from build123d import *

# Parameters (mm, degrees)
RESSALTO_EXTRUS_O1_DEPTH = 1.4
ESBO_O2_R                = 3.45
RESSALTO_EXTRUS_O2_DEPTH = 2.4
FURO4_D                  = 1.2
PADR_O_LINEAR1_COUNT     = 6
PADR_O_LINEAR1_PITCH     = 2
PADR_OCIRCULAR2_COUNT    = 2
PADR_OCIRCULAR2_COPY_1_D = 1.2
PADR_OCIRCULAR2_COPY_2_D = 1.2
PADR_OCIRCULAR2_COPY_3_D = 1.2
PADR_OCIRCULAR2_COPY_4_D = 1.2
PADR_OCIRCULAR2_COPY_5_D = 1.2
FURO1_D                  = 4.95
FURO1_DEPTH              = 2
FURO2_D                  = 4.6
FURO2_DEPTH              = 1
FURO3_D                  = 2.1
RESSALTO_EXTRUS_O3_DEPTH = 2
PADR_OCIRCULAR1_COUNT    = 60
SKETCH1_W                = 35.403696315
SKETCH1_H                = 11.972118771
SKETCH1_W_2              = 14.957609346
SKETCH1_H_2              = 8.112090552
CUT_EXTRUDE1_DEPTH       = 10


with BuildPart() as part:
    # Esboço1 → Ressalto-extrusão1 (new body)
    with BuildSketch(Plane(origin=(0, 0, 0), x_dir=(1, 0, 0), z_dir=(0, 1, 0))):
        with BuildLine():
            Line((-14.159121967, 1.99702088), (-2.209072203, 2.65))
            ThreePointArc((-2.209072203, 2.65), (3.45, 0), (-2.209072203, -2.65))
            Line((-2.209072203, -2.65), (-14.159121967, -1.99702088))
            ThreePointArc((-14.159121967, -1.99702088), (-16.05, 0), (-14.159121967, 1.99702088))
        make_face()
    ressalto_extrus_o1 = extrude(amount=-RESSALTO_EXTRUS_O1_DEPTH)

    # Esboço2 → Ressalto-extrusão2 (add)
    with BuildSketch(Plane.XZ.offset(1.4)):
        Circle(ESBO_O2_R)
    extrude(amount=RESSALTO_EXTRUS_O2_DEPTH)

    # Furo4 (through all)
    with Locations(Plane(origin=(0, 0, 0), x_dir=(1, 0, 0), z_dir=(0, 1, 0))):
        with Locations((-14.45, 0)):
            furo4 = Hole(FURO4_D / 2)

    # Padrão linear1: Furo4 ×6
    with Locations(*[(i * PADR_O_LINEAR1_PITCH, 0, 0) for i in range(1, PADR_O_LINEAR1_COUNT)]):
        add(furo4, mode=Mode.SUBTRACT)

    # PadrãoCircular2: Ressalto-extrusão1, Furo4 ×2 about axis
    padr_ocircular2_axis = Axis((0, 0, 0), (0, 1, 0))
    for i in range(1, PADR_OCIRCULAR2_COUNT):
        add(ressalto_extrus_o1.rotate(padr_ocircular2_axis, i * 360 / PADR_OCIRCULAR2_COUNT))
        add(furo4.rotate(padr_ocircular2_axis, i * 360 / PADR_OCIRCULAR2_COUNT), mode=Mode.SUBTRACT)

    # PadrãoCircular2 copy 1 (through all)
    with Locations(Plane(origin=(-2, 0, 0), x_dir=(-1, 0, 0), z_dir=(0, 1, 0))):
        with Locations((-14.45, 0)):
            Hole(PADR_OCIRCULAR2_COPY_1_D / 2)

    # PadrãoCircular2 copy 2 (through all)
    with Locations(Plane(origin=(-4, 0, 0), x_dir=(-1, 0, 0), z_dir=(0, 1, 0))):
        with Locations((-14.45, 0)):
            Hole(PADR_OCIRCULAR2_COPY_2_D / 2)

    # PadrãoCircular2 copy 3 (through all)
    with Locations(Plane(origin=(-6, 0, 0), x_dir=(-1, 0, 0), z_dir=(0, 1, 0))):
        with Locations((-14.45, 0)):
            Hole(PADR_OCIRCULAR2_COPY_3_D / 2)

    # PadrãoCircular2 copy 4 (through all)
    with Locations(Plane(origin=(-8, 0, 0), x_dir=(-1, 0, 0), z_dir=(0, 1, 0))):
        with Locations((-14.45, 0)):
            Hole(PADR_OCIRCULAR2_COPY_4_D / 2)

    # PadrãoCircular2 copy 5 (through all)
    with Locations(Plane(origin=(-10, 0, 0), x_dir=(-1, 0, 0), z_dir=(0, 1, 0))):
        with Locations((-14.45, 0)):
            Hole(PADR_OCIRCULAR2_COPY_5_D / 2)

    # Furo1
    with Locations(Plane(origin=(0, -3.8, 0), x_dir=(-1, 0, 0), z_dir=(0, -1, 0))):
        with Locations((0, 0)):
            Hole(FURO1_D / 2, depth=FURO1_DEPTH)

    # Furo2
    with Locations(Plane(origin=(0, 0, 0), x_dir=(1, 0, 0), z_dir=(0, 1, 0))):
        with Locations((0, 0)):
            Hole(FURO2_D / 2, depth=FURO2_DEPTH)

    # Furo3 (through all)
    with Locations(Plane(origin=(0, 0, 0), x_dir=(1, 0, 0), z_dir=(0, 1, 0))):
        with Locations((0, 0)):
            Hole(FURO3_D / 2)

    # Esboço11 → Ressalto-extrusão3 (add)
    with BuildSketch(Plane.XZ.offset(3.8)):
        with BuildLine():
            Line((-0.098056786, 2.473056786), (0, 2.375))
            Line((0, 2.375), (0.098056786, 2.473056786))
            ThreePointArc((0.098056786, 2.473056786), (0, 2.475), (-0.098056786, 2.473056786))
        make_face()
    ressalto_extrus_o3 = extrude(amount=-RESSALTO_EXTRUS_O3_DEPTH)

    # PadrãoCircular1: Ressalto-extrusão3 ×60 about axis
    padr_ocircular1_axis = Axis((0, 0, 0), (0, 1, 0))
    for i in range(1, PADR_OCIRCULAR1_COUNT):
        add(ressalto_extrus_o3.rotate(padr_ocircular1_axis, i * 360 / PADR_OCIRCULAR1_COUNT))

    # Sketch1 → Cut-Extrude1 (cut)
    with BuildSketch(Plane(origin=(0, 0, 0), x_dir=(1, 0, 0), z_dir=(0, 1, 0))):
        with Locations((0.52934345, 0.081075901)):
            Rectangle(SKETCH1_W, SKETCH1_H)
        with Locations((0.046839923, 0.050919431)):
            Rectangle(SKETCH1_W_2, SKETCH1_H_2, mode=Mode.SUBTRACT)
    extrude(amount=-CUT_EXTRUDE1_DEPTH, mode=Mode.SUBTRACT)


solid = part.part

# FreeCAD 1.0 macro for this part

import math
import FreeCAD as App
import Part
import Sketcher

V = App.Vector

doc = App.newDocument("Part")
body = doc.addObject("PartDesign::Body", "Body")

sketch1 = doc.addObject("Sketcher::SketchObject", "Sketch")
body.addObject(sketch1)
sketch1.AttachmentSupport = (doc.XZ_Plane, [""])
sketch1.MapMode = "FlatFace"
sketch1.addGeometry(Part.LineSegment(V(-2.209072, -2.65, 0), V(-14.159122, -1.997021, 0)), False)
sketch1.addGeometry(Part.ArcOfCircle(Part.Circle(V(-14.05, 0, 0), V(0, 0, 1), 2), math.radians(93.127667), math.radians(266.872333)), False)
sketch1.addGeometry(Part.LineSegment(V(-14.159122, 1.997021, 0), V(-2.209072, 2.65, 0)), False)
sketch1.addGeometry(Part.ArcOfCircle(Part.Circle(V(0, 0, 0), V(0, 0, 1), 3.45), math.radians(-129.814998), math.radians(129.814998)), False)
sketch1.addConstraint(Sketcher.Constraint("Tangent", 0, 2, 1, 2))
sketch1.addConstraint(Sketcher.Constraint("Tangent", 1, 1, 2, 1))
sketch1.addConstraint(Sketcher.Constraint("Coincident", 2, 2, 3, 2))
sketch1.addConstraint(Sketcher.Constraint("Coincident", 3, 1, 0, 1))
sketch1.addConstraint(Sketcher.Constraint("Coincident", 3, 3, -1, 1))
sketch1.addConstraint(Sketcher.Constraint("Symmetric", 0, 2, 1, 1, -1))
sketch1.addConstraint(Sketcher.Constraint("Radius", 1, 2.0))
sketch1.addConstraint(Sketcher.Constraint("Radius", 3, 3.45))
sketch1.addConstraint(Sketcher.Constraint("DistanceY", 3, 1, 2, 2, 5.3))
sketch1.addConstraint(Sketcher.Constraint("DistanceX", 1, 3, -1, 1, 14.05))
pad1 = doc.addObject("PartDesign::Pad", "Pad")
body.addObject(pad1)
pad1.Profile = sketch1
pad1.Length = 1.4

sketch2 = doc.addObject("Sketcher::SketchObject", "Sketch001")
body.addObject(sketch2)
sketch2.AttachmentSupport = (doc.XZ_Plane, [""])
sketch2.MapMode = "FlatFace"
sketch2.AttachmentOffset = App.Placement(V(0, 0, 1.4), App.Rotation())
sketch2.addGeometry(Part.Circle(V(0, 0, 0), V(0, 0, 1), 3.45), False)
sketch2.addConstraint(Sketcher.Constraint("Coincident", 0, 3, -1, 1))
sketch2.addConstraint(Sketcher.Constraint("Diameter", 0, 6.9))
pad2 = doc.addObject("PartDesign::Pad", "Pad001")
body.addObject(pad2)
pad2.Profile = sketch2
pad2.Length = 2.4

sketch3 = doc.addObject("Sketcher::SketchObject", "Sketch002")
body.addObject(sketch3)
sketch3.AttachmentSupport = (doc.XZ_Plane, [""])
sketch3.MapMode = "FlatFace"
sketch3.addGeometry(Part.Circle(V(-14.45, 0, 0), V(0, 0, 1), 0.6), False)
sketch3.addConstraint(Sketcher.Constraint("PointOnObject", 0, 3, -1))
sketch3.addConstraint(Sketcher.Constraint("Diameter", 0, 1.2))
sketch3.addConstraint(Sketcher.Constraint("DistanceX", 0, 3, -1, 1, 14.45))
doc.recompute()
hole = doc.addObject("PartDesign::Hole", "Hole")
body.addObject(hole)
hole.Profile = sketch3
hole.ThreadType = "None"
hole.Diameter = 1.2
hole.DepthType = "ThroughAll"
hole.Reversed = True
doc.recompute()

linearpattern = doc.addObject("PartDesign::LinearPattern", "LinearPattern")
body.addObject(linearpattern)
linearpattern.Originals = [hole]
linearpattern.Direction = (doc.X_Axis, [""])
linearpattern.Mode = "offset"
linearpattern.Offset = 2
linearpattern.Occurrences = 6
body.Tip = linearpattern
doc.recompute()

polarpattern = doc.addObject("PartDesign::PolarPattern", "PolarPattern")
body.addObject(polarpattern)
polarpattern.Originals = [pad1, hole]
polarpattern.Axis = (doc.Y_Axis, [""])
polarpattern.Angle = 360
polarpattern.Occurrences = 2
body.Tip = polarpattern

sketch4 = doc.addObject("Sketcher::SketchObject", "Sketch003")
body.addObject(sketch4)
sketch4.AttachmentSupport = (doc.XZ_Plane, [""])
sketch4.MapMode = "FlatFace"
sketch4.addGeometry(Part.Circle(V(12.45, 0, 0), V(0, 0, 1), 0.6), False)
sketch4.addConstraint(Sketcher.Constraint("PointOnObject", 0, 3, -1))
sketch4.addConstraint(Sketcher.Constraint("Diameter", 0, 1.2))
sketch4.addConstraint(Sketcher.Constraint("DistanceX", -1, 1, 0, 3, 12.45))
doc.recompute()
hole2 = doc.addObject("PartDesign::Hole", "Hole001")
body.addObject(hole2)
hole2.Profile = sketch4
hole2.ThreadType = "None"
hole2.Diameter = 1.2
hole2.DepthType = "ThroughAll"
hole2.Reversed = True

sketch5 = doc.addObject("Sketcher::SketchObject", "Sketch004")
body.addObject(sketch5)
sketch5.AttachmentSupport = (doc.XZ_Plane, [""])
sketch5.MapMode = "FlatFace"
sketch5.addGeometry(Part.Circle(V(10.45, 0, 0), V(0, 0, 1), 0.6), False)
sketch5.addConstraint(Sketcher.Constraint("PointOnObject", 0, 3, -1))
sketch5.addConstraint(Sketcher.Constraint("Diameter", 0, 1.2))
sketch5.addConstraint(Sketcher.Constraint("DistanceX", -1, 1, 0, 3, 10.45))
doc.recompute()
hole3 = doc.addObject("PartDesign::Hole", "Hole002")
body.addObject(hole3)
hole3.Profile = sketch5
hole3.ThreadType = "None"
hole3.Diameter = 1.2
hole3.DepthType = "ThroughAll"
hole3.Reversed = True

sketch6 = doc.addObject("Sketcher::SketchObject", "Sketch005")
body.addObject(sketch6)
sketch6.AttachmentSupport = (doc.XZ_Plane, [""])
sketch6.MapMode = "FlatFace"
sketch6.addGeometry(Part.Circle(V(8.45, 0, 0), V(0, 0, 1), 0.6), False)
sketch6.addConstraint(Sketcher.Constraint("PointOnObject", 0, 3, -1))
sketch6.addConstraint(Sketcher.Constraint("Diameter", 0, 1.2))
sketch6.addConstraint(Sketcher.Constraint("DistanceX", -1, 1, 0, 3, 8.45))
doc.recompute()
hole4 = doc.addObject("PartDesign::Hole", "Hole003")
body.addObject(hole4)
hole4.Profile = sketch6
hole4.ThreadType = "None"
hole4.Diameter = 1.2
hole4.DepthType = "ThroughAll"
hole4.Reversed = True

sketch7 = doc.addObject("Sketcher::SketchObject", "Sketch006")
body.addObject(sketch7)
sketch7.AttachmentSupport = (doc.XZ_Plane, [""])
sketch7.MapMode = "FlatFace"
sketch7.addGeometry(Part.Circle(V(6.45, 0, 0), V(0, 0, 1), 0.6), False)
sketch7.addConstraint(Sketcher.Constraint("PointOnObject", 0, 3, -1))
sketch7.addConstraint(Sketcher.Constraint("Diameter", 0, 1.2))
sketch7.addConstraint(Sketcher.Constraint("DistanceX", -1, 1, 0, 3, 6.45))
doc.recompute()
hole5 = doc.addObject("PartDesign::Hole", "Hole004")
body.addObject(hole5)
hole5.Profile = sketch7
hole5.ThreadType = "None"
hole5.Diameter = 1.2
hole5.DepthType = "ThroughAll"
hole5.Reversed = True

sketch8 = doc.addObject("Sketcher::SketchObject", "Sketch007")
body.addObject(sketch8)
sketch8.AttachmentSupport = (doc.XZ_Plane, [""])
sketch8.MapMode = "FlatFace"
sketch8.addGeometry(Part.Circle(V(4.45, 0, 0), V(0, 0, 1), 0.6), False)
sketch8.addConstraint(Sketcher.Constraint("PointOnObject", 0, 3, -1))
sketch8.addConstraint(Sketcher.Constraint("Diameter", 0, 1.2))
sketch8.addConstraint(Sketcher.Constraint("DistanceX", -1, 1, 0, 3, 4.45))
doc.recompute()
hole6 = doc.addObject("PartDesign::Hole", "Hole005")
body.addObject(hole6)
hole6.Profile = sketch8
hole6.ThreadType = "None"
hole6.Diameter = 1.2
hole6.DepthType = "ThroughAll"
hole6.Reversed = True

sketch9 = doc.addObject("Sketcher::SketchObject", "Sketch008")
body.addObject(sketch9)
sketch9.AttachmentSupport = (doc.XZ_Plane, [""])
sketch9.MapMode = "FlatFace"
sketch9.AttachmentOffset = App.Placement(V(0, 0, 3.8), App.Rotation())
sketch9.addGeometry(Part.Circle(V(0, 0, 0), V(0, 0, 1), 2.475), False)
sketch9.addConstraint(Sketcher.Constraint("Coincident", 0, 3, -1, 1))
sketch9.addConstraint(Sketcher.Constraint("Diameter", 0, 4.95))
doc.recompute()
hole7 = doc.addObject("PartDesign::Hole", "Hole006")
body.addObject(hole7)
hole7.Profile = sketch9
hole7.ThreadType = "None"
hole7.Diameter = 4.95
hole7.DepthType = "Dimension"
hole7.Depth = 2
hole7.DrillPoint = "Flat"

sketch10 = doc.addObject("Sketcher::SketchObject", "Sketch009")
body.addObject(sketch10)
sketch10.AttachmentSupport = (doc.XZ_Plane, [""])
sketch10.MapMode = "FlatFace"
sketch10.addGeometry(Part.Circle(V(0, 0, 0), V(0, 0, 1), 2.3), False)
sketch10.addConstraint(Sketcher.Constraint("Coincident", 0, 3, -1, 1))
sketch10.addConstraint(Sketcher.Constraint("Diameter", 0, 4.6))
doc.recompute()
hole8 = doc.addObject("PartDesign::Hole", "Hole007")
body.addObject(hole8)
hole8.Profile = sketch10
hole8.ThreadType = "None"
hole8.Diameter = 4.6
hole8.DepthType = "Dimension"
hole8.Depth = 1
hole8.DrillPoint = "Flat"
hole8.Reversed = True

sketch11 = doc.addObject("Sketcher::SketchObject", "Sketch010")
body.addObject(sketch11)
sketch11.AttachmentSupport = (doc.XZ_Plane, [""])
sketch11.MapMode = "FlatFace"
sketch11.addGeometry(Part.Circle(V(0, 0, 0), V(0, 0, 1), 1.05), False)
sketch11.addConstraint(Sketcher.Constraint("Coincident", 0, 3, -1, 1))
sketch11.addConstraint(Sketcher.Constraint("Diameter", 0, 2.1))
doc.recompute()
hole9 = doc.addObject("PartDesign::Hole", "Hole008")
body.addObject(hole9)
hole9.Profile = sketch11
hole9.ThreadType = "None"
hole9.Diameter = 2.1
hole9.DepthType = "ThroughAll"
hole9.Reversed = True

sketch12 = doc.addObject("Sketcher::SketchObject", "Sketch011")
body.addObject(sketch12)
sketch12.AttachmentSupport = (doc.XZ_Plane, [""])
sketch12.MapMode = "FlatFace"
sketch12.AttachmentOffset = App.Placement(V(0, 0, 3.8), App.Rotation())
sketch12.addGeometry(Part.LineSegment(V(-0.098057, 2.473057, 0), V(0, 2.375, 0)), False)
sketch12.addGeometry(Part.LineSegment(V(0, 2.375, 0), V(0.098057, 2.473057, 0)), False)
sketch12.addGeometry(Part.ArcOfCircle(Part.Circle(V(0, 0, 0), V(0, 0, 1), 2.475), math.radians(87.72941), math.radians(92.27059)), False)
sketch12.addConstraint(Sketcher.Constraint("Coincident", 0, 2, 1, 1))
sketch12.addConstraint(Sketcher.Constraint("Coincident", 1, 2, 2, 1))
sketch12.addConstraint(Sketcher.Constraint("Coincident", 2, 2, 0, 1))
sketch12.addConstraint(Sketcher.Constraint("Coincident", 2, 3, -1, 1))
sketch12.addConstraint(Sketcher.Constraint("PointOnObject", 0, 2, -2))
sketch12.addConstraint(Sketcher.Constraint("Perpendicular", 0, 1))
sketch12.addConstraint(Sketcher.Constraint("Horizontal", 1, 2, 2, 2))
sketch12.addConstraint(Sketcher.Constraint("Radius", 2, 2.475))
sketch12.addConstraint(Sketcher.Constraint("DistanceY", -1, 1, 0, 2, 2.375))
pad3 = doc.addObject("PartDesign::Pad", "Pad002")
body.addObject(pad3)
pad3.Profile = sketch12
pad3.Length = 2
pad3.Reversed = True
doc.recompute()

polarpattern2 = doc.addObject("PartDesign::PolarPattern", "PolarPattern001")
body.addObject(polarpattern2)
polarpattern2.Originals = [pad3]
polarpattern2.Axis = (doc.Y_Axis, [""])
polarpattern2.Angle = 360
polarpattern2.Occurrences = 60
body.Tip = polarpattern2

sketch13 = doc.addObject("Sketcher::SketchObject", "Sketch012")
body.addObject(sketch13)
sketch13.AttachmentSupport = (doc.XZ_Plane, [""])
sketch13.MapMode = "FlatFace"
sketch13.addGeometry(Part.LineSegment(V(-17.172505, -6.067135, 0), V(-17.172505, 5.904983, 0)), False)
sketch13.addGeometry(Part.LineSegment(V(-17.172505, 5.904983, 0), V(18.231192, 5.904983, 0)), False)
sketch13.addGeometry(Part.LineSegment(V(18.231192, 5.904983, 0), V(18.231192, -6.067135, 0)), False)
sketch13.addGeometry(Part.LineSegment(V(18.231192, -6.067135, 0), V(-17.172505, -6.067135, 0)), False)
sketch13.addGeometry(Part.LineSegment(V(7.525645, 4.005126, 0), V(-7.431965, 4.005126, 0)), False)
sketch13.addGeometry(Part.LineSegment(V(-7.431965, 4.005126, 0), V(-7.431965, -4.106965, 0)), False)
sketch13.addGeometry(Part.LineSegment(V(-7.431965, -4.106965, 0), V(7.525645, -4.106965, 0)), False)
sketch13.addGeometry(Part.LineSegment(V(7.525645, -4.106965, 0), V(7.525645, 4.005126, 0)), False)
sketch13.addConstraint(Sketcher.Constraint("Coincident", 0, 2, 1, 1))
sketch13.addConstraint(Sketcher.Constraint("Coincident", 1, 2, 2, 1))
sketch13.addConstraint(Sketcher.Constraint("Coincident", 2, 2, 3, 1))
sketch13.addConstraint(Sketcher.Constraint("Coincident", 3, 2, 0, 1))
sketch13.addConstraint(Sketcher.Constraint("Coincident", 4, 2, 5, 1))
sketch13.addConstraint(Sketcher.Constraint("Coincident", 5, 2, 6, 1))
sketch13.addConstraint(Sketcher.Constraint("Coincident", 6, 2, 7, 1))
sketch13.addConstraint(Sketcher.Constraint("Coincident", 7, 2, 4, 1))
sketch13.addConstraint(Sketcher.Constraint("Vertical", 0))
sketch13.addConstraint(Sketcher.Constraint("Horizontal", 1))
sketch13.addConstraint(Sketcher.Constraint("Vertical", 2))
sketch13.addConstraint(Sketcher.Constraint("Horizontal", 3))
sketch13.addConstraint(Sketcher.Constraint("Horizontal", 4))
sketch13.addConstraint(Sketcher.Constraint("Vertical", 5))
sketch13.addConstraint(Sketcher.Constraint("Horizontal", 6))
sketch13.addConstraint(Sketcher.Constraint("Vertical", 7))
sketch13.addConstraint(Sketcher.Constraint("DistanceX", 4, 2, 4, 1, 14.957609))
sketch13.addConstraint(Sketcher.Constraint("DistanceY", 0, 1, 0, 2, 11.972119))
sketch13.addConstraint(Sketcher.Constraint("DistanceY", 5, 2, 5, 1, 8.112091))
sketch13.addConstraint(Sketcher.Constraint("DistanceX", 1, 1, 1, 2, 35.403696))
sketch13.addConstraint(Sketcher.Constraint("DistanceX", -1, 1, 1, 2, 18.231192))
sketch13.addConstraint(Sketcher.Constraint("DistanceX", 0, 2, 4, 2, 9.74054))
sketch13.addConstraint(Sketcher.Constraint("DistanceY", 3, 2, 4, 2, 10.072261))
sketch13.addConstraint(Sketcher.Constraint("DistanceY", -1, 1, 0, 2, 5.904983))
pocket1 = doc.addObject("PartDesign::Pocket", "Pocket")
body.addObject(pocket1)
pocket1.Profile = sketch13
pocket1.Length = 10
pocket1.Reversed = True

doc.recompute()
